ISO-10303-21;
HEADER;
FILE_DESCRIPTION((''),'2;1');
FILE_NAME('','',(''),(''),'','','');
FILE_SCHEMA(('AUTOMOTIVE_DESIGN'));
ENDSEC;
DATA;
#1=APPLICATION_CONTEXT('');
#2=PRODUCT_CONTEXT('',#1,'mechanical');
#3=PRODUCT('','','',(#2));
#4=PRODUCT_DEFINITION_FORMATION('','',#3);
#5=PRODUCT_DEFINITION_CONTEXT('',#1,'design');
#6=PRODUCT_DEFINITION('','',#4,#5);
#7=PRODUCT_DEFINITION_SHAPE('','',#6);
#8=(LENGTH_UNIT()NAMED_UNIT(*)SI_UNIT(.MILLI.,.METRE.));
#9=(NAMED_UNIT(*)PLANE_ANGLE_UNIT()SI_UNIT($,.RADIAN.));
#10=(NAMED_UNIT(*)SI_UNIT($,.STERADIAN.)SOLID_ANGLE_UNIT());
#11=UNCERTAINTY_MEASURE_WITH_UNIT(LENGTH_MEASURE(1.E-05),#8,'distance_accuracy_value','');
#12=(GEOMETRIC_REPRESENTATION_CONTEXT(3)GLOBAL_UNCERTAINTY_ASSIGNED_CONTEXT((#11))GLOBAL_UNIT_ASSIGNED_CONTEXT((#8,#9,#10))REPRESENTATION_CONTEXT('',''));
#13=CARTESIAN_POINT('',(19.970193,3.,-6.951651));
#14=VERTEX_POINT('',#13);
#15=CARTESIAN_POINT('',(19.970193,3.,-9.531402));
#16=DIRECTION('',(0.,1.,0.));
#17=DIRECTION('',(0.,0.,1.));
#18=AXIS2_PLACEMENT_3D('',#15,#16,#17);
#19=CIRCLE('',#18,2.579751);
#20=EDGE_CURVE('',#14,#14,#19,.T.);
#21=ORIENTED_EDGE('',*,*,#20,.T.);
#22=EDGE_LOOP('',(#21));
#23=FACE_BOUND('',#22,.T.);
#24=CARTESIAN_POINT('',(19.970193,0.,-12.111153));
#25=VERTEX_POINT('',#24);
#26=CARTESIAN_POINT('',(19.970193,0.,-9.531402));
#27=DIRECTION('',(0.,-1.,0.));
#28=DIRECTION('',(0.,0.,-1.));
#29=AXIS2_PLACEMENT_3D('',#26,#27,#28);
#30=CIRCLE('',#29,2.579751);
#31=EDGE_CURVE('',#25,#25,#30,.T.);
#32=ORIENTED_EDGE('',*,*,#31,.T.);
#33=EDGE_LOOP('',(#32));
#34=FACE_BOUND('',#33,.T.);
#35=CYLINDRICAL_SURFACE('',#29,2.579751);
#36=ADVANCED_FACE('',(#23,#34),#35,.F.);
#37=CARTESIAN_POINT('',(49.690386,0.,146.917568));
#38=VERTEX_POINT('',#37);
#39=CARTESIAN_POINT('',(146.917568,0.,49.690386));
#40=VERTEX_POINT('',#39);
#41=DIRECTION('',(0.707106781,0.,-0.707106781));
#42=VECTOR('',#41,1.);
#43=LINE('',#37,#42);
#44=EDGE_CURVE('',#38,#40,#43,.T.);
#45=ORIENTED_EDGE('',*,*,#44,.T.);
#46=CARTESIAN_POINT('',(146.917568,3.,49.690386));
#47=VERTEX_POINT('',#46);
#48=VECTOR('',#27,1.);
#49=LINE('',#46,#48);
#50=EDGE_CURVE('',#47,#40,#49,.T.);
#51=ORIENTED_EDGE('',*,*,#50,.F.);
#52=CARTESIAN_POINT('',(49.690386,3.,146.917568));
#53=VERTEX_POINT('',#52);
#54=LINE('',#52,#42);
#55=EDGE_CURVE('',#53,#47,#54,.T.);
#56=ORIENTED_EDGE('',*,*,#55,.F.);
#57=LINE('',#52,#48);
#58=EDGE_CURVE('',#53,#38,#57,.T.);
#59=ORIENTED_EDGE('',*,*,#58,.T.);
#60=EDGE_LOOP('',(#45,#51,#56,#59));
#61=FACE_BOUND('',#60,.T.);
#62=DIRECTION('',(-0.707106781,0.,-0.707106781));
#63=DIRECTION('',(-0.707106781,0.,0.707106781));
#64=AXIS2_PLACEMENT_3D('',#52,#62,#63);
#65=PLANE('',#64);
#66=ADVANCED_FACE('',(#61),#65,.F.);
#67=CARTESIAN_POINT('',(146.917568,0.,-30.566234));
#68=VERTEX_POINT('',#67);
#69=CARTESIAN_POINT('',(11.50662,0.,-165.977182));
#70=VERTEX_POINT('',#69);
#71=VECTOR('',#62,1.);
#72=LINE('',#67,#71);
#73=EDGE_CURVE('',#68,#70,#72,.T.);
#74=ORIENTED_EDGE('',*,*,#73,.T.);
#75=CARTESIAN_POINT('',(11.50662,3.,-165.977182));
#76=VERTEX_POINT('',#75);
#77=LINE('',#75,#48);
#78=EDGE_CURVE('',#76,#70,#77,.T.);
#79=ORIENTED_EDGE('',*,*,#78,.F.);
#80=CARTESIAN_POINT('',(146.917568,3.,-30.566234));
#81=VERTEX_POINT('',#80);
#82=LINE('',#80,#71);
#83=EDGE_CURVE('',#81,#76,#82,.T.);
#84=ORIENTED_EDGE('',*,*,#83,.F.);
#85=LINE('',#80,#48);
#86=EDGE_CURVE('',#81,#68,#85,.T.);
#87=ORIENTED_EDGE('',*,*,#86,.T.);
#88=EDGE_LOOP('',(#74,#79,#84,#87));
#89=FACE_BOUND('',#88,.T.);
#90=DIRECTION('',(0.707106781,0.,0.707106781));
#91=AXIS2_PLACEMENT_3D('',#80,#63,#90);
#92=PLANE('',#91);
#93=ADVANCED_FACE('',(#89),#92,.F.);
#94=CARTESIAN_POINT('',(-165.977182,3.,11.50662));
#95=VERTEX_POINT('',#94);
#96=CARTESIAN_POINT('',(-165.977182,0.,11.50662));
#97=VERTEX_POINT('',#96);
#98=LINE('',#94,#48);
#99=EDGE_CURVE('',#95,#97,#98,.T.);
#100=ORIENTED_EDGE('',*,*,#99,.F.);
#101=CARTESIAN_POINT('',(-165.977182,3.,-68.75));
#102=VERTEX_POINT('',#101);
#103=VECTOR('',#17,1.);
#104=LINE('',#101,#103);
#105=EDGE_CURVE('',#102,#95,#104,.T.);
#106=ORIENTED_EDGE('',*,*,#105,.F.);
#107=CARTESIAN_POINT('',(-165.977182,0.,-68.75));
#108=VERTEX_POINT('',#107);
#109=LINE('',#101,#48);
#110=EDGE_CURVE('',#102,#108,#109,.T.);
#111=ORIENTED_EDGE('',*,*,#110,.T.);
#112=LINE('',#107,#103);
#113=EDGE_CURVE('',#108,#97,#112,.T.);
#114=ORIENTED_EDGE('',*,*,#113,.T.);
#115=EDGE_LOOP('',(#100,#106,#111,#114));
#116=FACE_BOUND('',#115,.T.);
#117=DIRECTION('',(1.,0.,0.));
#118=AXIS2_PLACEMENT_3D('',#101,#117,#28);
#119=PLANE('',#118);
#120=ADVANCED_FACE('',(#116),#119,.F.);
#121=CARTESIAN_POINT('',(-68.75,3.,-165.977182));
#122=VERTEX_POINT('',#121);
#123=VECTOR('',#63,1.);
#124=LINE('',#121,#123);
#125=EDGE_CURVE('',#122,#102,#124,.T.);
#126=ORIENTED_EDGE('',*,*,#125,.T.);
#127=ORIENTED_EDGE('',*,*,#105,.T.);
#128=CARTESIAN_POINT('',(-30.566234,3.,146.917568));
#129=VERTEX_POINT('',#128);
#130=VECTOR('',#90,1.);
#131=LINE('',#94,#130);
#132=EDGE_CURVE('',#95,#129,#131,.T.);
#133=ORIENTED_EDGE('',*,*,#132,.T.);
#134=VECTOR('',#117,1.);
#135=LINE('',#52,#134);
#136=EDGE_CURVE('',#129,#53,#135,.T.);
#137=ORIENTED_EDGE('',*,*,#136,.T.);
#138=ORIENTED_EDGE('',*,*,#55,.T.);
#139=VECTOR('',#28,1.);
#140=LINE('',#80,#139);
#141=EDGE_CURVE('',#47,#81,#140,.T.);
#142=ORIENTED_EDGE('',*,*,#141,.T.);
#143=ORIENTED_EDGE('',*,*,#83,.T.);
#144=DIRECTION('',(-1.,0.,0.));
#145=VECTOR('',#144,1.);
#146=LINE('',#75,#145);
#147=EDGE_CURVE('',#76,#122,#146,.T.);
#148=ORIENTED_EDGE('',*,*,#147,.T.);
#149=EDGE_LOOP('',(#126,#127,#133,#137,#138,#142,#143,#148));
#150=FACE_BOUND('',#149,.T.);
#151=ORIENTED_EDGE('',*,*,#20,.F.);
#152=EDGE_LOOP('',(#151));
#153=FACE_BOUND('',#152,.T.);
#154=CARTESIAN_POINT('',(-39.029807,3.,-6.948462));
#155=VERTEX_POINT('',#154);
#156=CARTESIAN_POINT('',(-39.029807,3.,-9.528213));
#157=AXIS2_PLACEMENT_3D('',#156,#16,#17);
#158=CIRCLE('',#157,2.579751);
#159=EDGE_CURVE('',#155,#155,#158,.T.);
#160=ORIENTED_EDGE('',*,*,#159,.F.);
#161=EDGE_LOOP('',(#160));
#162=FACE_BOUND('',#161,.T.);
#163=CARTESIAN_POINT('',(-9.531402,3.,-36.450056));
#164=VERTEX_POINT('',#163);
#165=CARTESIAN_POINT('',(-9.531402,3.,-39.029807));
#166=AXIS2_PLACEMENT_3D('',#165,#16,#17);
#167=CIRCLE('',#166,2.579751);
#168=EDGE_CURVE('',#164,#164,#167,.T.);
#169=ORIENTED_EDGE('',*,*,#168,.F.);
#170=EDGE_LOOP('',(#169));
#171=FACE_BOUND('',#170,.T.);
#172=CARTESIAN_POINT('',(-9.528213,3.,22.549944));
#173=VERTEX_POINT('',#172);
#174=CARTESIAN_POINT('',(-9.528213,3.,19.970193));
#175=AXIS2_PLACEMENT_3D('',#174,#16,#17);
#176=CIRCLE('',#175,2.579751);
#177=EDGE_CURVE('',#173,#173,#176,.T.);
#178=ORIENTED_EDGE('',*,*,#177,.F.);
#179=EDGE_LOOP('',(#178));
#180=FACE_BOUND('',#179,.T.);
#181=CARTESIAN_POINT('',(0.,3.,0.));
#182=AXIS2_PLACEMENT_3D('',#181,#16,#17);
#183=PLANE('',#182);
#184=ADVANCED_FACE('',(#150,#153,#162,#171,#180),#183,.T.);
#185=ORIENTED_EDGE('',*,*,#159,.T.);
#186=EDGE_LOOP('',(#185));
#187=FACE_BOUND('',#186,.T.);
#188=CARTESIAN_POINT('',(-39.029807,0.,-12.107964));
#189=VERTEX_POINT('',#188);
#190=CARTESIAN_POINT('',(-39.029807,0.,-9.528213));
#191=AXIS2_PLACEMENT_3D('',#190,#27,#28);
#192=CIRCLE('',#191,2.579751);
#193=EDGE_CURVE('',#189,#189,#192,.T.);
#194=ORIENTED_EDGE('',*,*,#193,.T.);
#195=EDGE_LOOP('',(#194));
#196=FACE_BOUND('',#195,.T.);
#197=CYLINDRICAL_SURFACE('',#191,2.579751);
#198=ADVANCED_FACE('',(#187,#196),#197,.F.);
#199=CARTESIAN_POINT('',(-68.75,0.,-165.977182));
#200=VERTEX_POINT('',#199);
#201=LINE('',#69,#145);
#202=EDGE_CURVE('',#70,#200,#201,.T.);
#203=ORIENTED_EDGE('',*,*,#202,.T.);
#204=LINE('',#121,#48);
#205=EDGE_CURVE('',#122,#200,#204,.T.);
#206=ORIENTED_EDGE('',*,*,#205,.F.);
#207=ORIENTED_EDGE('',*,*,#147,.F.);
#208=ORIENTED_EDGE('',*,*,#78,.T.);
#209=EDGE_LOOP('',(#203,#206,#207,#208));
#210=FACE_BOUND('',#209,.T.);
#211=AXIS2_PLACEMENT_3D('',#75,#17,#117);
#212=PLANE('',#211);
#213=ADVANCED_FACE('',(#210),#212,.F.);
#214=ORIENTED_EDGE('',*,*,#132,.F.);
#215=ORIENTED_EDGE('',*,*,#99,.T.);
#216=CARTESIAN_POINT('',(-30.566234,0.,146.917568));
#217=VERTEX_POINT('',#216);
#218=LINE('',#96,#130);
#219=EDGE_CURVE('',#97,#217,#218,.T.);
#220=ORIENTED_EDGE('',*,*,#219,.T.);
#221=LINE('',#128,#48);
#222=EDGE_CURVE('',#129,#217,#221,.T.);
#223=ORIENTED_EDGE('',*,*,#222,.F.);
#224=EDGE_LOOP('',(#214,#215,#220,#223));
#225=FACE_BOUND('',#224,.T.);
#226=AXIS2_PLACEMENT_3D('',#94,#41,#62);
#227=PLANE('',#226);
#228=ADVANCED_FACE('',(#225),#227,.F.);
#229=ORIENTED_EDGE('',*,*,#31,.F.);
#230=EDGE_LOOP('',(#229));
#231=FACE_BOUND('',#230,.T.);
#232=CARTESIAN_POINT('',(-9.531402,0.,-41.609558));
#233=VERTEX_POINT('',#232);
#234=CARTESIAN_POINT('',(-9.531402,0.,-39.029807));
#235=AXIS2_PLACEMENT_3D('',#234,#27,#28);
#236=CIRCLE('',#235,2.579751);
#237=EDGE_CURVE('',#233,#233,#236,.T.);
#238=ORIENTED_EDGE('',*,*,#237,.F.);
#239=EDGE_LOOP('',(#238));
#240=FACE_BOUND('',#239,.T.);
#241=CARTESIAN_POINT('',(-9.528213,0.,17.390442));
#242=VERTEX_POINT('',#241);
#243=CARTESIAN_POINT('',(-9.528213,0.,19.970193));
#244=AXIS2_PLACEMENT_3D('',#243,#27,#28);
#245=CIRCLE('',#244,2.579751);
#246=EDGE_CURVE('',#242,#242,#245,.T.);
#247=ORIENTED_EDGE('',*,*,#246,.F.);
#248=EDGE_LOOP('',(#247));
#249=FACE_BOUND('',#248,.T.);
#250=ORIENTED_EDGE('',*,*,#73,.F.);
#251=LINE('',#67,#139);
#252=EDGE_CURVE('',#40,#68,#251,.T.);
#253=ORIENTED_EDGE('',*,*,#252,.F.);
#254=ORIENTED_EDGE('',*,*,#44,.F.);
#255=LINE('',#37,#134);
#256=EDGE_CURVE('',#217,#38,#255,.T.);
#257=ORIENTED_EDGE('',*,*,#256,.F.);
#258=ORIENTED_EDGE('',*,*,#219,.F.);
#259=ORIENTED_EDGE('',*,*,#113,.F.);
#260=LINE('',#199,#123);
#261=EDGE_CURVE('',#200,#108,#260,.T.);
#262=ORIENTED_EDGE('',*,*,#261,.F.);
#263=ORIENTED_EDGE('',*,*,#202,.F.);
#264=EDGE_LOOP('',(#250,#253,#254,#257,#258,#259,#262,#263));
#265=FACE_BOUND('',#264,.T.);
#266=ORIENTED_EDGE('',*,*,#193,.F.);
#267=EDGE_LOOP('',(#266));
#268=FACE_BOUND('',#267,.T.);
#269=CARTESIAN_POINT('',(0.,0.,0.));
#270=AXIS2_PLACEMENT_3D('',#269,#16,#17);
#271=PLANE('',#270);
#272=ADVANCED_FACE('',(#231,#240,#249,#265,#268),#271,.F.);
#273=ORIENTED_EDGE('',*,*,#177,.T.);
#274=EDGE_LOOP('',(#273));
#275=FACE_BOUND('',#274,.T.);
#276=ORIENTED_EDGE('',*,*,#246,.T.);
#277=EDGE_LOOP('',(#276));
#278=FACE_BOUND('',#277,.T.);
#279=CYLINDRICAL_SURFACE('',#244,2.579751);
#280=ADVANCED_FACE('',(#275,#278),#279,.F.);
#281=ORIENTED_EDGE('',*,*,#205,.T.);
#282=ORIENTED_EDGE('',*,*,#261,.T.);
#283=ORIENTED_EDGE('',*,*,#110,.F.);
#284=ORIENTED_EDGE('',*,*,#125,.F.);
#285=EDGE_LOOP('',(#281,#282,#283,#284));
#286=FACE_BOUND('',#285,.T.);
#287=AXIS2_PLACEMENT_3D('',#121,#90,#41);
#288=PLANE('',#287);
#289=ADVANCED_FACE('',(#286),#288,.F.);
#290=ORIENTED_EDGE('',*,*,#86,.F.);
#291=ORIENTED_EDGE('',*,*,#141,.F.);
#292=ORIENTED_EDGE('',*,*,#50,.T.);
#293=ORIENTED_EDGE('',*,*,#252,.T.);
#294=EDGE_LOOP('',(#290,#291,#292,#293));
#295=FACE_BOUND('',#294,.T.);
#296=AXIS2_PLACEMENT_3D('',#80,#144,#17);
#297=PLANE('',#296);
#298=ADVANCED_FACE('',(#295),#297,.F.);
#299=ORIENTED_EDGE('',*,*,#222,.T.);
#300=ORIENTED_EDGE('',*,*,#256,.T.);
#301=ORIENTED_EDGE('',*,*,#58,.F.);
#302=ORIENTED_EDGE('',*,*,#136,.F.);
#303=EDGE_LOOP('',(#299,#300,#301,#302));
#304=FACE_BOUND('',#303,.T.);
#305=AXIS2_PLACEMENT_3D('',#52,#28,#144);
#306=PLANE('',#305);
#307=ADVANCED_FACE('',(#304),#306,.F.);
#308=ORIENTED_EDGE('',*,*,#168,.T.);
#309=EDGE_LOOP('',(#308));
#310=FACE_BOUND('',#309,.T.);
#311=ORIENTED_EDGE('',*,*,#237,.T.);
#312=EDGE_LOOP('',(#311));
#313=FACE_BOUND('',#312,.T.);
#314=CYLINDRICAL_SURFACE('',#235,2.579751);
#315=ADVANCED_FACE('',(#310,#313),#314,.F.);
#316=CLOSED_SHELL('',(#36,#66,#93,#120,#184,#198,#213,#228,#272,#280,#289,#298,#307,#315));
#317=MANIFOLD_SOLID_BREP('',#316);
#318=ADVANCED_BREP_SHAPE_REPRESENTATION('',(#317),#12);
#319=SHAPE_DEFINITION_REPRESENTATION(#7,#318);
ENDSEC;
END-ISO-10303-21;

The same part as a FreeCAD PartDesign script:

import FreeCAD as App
import Part
import Sketcher
Q = App.Units.Quantity

doc = App.newDocument("Part")
params = doc.addObject("Spreadsheet::Sheet", "Params")
for row, (alias, value) in enumerate([
    ("sketch1_length", "191.5 mm"),
    ("sketch1_length2", "137.5 mm"),
    ("pad1_length", "3 mm"),
    ("hole_diameter", "5.159502 mm"),
], start=1):
    params.set(f"A{row}", alias)
    params.set(f"B{row}", "=" + value)
    params.setAlias(f"B{row}", alias)

body = doc.addObject("PartDesign::Body", "Body")

# Sketch on XZ plane
sketch1 = body.newObject("Sketcher::SketchObject", "Sketch")
sketch1.AttachmentSupport = (doc.getObject("XZ_Plane"), [""])
sketch1.MapMode = "FlatFace"
sketch1.addGeometry(Part.LineSegment(App.Vector(147, -31, 0), App.Vector(12, -166, 0)), False)
sketch1.addGeometry(Part.LineSegment(App.Vector(12, -166, 0), App.Vector(-69, -166, 0)), False)
sketch1.addGeometry(Part.LineSegment(App.Vector(-69, -166, 0), App.Vector(-166, -69, 0)), False)
sketch1.addGeometry(Part.LineSegment(App.Vector(-166, -69, 0), App.Vector(-166, 12, 0)), False)
sketch1.addGeometry(Part.LineSegment(App.Vector(-166, 12, 0), App.Vector(-31, 147, 0)), False)
sketch1.addGeometry(Part.LineSegment(App.Vector(-31, 147, 0), App.Vector(50, 147, 0)), False)
sketch1.addGeometry(Part.LineSegment(App.Vector(50, 147, 0), App.Vector(147, 50, 0)), False)
sketch1.addGeometry(Part.LineSegment(App.Vector(147, 50, 0), App.Vector(147, -31, 0)), False)
sketch1.addConstraint(Sketcher.Constraint("Coincident", 0, 2, 1, 1))
sketch1.addConstraint(Sketcher.Constraint("Coincident", 1, 2, 2, 1))
sketch1.addConstraint(Sketcher.Constraint("Coincident", 2, 2, 3, 1))
sketch1.addConstraint(Sketcher.Constraint("Coincident", 3, 2, 4, 1))
sketch1.addConstraint(Sketcher.Constraint("Coincident", 4, 2, 5, 1))
sketch1.addConstraint(Sketcher.Constraint("Coincident", 5, 2, 6, 1))
sketch1.addConstraint(Sketcher.Constraint("Coincident", 6, 2, 7, 1))
sketch1.addConstraint(Sketcher.Constraint("Coincident", 7, 2, 0, 1))
sketch1.addConstraint(Sketcher.Constraint("Horizontal", 1))
sketch1.addConstraint(Sketcher.Constraint("Vertical", 3))
sketch1.addConstraint(Sketcher.Constraint("Horizontal", 5))
sketch1.addConstraint(Sketcher.Constraint("Vertical", 7))
sketch1.addConstraint(Sketcher.Constraint("Perpendicular", 0, 2))
sketch1.addConstraint(Sketcher.Constraint("Perpendicular", 2, 4))
sketch1.addConstraint(Sketcher.Constraint("Perpendicular", 4, 6))
sketch1.addConstraint(Sketcher.Constraint("Equal", 1, 5))
sketch1.addConstraint(Sketcher.Constraint("Equal", 5, 3))
sketch1.addConstraint(Sketcher.Constraint("Equal", 3, 7))
sketch1.addConstraint(Sketcher.Constraint("Angle", 0, Q("-135 deg")))
sketch1.addConstraint(Sketcher.Constraint("Distance", 0, Q("191.5 mm")))
sketch1.addConstraint(Sketcher.Constraint("Distance", 2, Q("137.5 mm")))
sketch1.addConstraint(Sketcher.Constraint("DistanceX", 1, 2, -1, 1, Q("68.75 mm")))
sketch1.addConstraint(Sketcher.Constraint("DistanceY", 2, 2, -1, 1, Q("68.75 mm")))
sketch1.addConstraint(Sketcher.Constraint("DistanceX", 1, 2, 1, 1, Q("80.25662 mm")))
sketch1.setExpression("Constraints[19]", "Params.sketch1_length")
sketch1.setExpression("Constraints[20]", "Params.sketch1_length2")
pad1 = body.newObject("PartDesign::Pad", "Pad")
pad1.Profile = sketch1
pad1.setExpression("Length", "Params.pad1_length")
pad1.Reversed = True

# Sketch on XZ plane
sketch2 = body.newObject("Sketcher::SketchObject", "Sketch001")
sketch2.AttachmentSupport = (doc.getObject("XZ_Plane"), [""])
sketch2.MapMode = "FlatFace"
sketch2.addGeometry(Part.Circle(App.Vector(-39, -9.5, 0), App.Vector(0, 0, 1), 2.6), False)
sketch2.addGeometry(Part.Circle(App.Vector(-9.5, 20, 0), App.Vector(0, 0, 1), 2.6), False)
sketch2.addGeometry(Part.Circle(App.Vector(20, -9.5, 0), App.Vector(0, 0, 1), 2.6), False)
sketch2.addGeometry(Part.Circle(App.Vector(-9.5, -39, 0), App.Vector(0, 0, 1), 2.6), False)
sketch2.addConstraint(Sketcher.Constraint("Equal", 0, 1))
sketch2.addConstraint(Sketcher.Constraint("Equal", 1, 2))
sketch2.addConstraint(Sketcher.Constraint("Equal", 2, 3))
sketch2.addConstraint(Sketcher.Constraint("DistanceX", 0, 3, 2, 3, Q("59 mm")))
sketch2.addConstraint(Sketcher.Constraint("DistanceY", 3, 3, 1, 3, Q("59 mm")))
sketch2.addConstraint(Sketcher.Constraint("Diameter", 0, Q("5.159502 mm")))
sketch2.addConstraint(Sketcher.Constraint("DistanceY", 2, 3, -1, 1, Q("9.531402 mm")))
sketch2.addConstraint(Sketcher.Constraint("DistanceX", 3, 3, -1, 1, Q("9.531402 mm")))
sketch2.addConstraint(Sketcher.Constraint("DistanceY", 2, 3, 0, 3, Q("0.003189 mm")))
sketch2.addConstraint(Sketcher.Constraint("DistanceX", 3, 3, 1, 3, Q("0.003189 mm")))
sketch2.addConstraint(Sketcher.Constraint("DistanceX", 0, 3, -1, 1, Q("39.029807 mm")))
sketch2.addConstraint(Sketcher.Constraint("DistanceY", -1, 1, 1, 3, Q("19.970193 mm")))
doc.recompute()
hole = body.newObject("PartDesign::Hole", "Hole")
hole.Profile = sketch2
hole.ThreadType = "None"
hole.setExpression("Diameter", "Params.hole_diameter")
hole.DepthType = "ThroughAll"

doc.recompute()
